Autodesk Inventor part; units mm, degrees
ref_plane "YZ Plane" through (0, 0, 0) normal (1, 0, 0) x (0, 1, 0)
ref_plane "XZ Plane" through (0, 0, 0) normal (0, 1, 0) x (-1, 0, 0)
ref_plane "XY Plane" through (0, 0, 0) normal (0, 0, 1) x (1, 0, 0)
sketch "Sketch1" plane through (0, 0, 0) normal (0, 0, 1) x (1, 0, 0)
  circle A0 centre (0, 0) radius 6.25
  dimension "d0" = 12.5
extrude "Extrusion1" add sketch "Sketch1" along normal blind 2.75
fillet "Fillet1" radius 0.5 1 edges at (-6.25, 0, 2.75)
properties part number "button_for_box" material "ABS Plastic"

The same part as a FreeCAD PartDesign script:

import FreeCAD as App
import Part
import Sketcher
Q = App.Units.Quantity


def edges_at(feature, points):
    """Names of the edges that pass closest to the given points."""
    edges = feature.Shape.Edges
    near = lambda p: min(range(len(edges)), key=lambda i: edges[i].distToShape(Part.Vertex(*p))[0])
    return sorted({f"Edge{near(p) + 1}" for p in points})

doc = App.newDocument("Part")
body = doc.addObject("PartDesign::Body", "Body")

sketch1 = body.newObject("Sketcher::SketchObject", "Sketch")
sketch1.AttachmentSupport = (doc.getObject("XY_Plane"), [""])
sketch1.MapMode = "FlatFace"
sketch1.addGeometry(Part.Circle(App.Vector(0, 0, 0), App.Vector(0, 0, 1), 6.25), False)
sketch1.addConstraint(Sketcher.Constraint("Coincident", 0, 3, -1, 1))
sketch1.addConstraint(Sketcher.Constraint("Diameter", 0, Q("12.5 mm")))
pad1 = body.newObject("PartDesign::Pad", "Pad")
pad1.Profile = sketch1
pad1.Length = 2.75
doc.recompute()

fillet = body.newObject("PartDesign::Fillet", "Fillet")
fillet.Base = (pad1, edges_at(pad1, [(-6.25, 0, 2.75)]))
fillet.Radius = 0.5

doc.recompute()
